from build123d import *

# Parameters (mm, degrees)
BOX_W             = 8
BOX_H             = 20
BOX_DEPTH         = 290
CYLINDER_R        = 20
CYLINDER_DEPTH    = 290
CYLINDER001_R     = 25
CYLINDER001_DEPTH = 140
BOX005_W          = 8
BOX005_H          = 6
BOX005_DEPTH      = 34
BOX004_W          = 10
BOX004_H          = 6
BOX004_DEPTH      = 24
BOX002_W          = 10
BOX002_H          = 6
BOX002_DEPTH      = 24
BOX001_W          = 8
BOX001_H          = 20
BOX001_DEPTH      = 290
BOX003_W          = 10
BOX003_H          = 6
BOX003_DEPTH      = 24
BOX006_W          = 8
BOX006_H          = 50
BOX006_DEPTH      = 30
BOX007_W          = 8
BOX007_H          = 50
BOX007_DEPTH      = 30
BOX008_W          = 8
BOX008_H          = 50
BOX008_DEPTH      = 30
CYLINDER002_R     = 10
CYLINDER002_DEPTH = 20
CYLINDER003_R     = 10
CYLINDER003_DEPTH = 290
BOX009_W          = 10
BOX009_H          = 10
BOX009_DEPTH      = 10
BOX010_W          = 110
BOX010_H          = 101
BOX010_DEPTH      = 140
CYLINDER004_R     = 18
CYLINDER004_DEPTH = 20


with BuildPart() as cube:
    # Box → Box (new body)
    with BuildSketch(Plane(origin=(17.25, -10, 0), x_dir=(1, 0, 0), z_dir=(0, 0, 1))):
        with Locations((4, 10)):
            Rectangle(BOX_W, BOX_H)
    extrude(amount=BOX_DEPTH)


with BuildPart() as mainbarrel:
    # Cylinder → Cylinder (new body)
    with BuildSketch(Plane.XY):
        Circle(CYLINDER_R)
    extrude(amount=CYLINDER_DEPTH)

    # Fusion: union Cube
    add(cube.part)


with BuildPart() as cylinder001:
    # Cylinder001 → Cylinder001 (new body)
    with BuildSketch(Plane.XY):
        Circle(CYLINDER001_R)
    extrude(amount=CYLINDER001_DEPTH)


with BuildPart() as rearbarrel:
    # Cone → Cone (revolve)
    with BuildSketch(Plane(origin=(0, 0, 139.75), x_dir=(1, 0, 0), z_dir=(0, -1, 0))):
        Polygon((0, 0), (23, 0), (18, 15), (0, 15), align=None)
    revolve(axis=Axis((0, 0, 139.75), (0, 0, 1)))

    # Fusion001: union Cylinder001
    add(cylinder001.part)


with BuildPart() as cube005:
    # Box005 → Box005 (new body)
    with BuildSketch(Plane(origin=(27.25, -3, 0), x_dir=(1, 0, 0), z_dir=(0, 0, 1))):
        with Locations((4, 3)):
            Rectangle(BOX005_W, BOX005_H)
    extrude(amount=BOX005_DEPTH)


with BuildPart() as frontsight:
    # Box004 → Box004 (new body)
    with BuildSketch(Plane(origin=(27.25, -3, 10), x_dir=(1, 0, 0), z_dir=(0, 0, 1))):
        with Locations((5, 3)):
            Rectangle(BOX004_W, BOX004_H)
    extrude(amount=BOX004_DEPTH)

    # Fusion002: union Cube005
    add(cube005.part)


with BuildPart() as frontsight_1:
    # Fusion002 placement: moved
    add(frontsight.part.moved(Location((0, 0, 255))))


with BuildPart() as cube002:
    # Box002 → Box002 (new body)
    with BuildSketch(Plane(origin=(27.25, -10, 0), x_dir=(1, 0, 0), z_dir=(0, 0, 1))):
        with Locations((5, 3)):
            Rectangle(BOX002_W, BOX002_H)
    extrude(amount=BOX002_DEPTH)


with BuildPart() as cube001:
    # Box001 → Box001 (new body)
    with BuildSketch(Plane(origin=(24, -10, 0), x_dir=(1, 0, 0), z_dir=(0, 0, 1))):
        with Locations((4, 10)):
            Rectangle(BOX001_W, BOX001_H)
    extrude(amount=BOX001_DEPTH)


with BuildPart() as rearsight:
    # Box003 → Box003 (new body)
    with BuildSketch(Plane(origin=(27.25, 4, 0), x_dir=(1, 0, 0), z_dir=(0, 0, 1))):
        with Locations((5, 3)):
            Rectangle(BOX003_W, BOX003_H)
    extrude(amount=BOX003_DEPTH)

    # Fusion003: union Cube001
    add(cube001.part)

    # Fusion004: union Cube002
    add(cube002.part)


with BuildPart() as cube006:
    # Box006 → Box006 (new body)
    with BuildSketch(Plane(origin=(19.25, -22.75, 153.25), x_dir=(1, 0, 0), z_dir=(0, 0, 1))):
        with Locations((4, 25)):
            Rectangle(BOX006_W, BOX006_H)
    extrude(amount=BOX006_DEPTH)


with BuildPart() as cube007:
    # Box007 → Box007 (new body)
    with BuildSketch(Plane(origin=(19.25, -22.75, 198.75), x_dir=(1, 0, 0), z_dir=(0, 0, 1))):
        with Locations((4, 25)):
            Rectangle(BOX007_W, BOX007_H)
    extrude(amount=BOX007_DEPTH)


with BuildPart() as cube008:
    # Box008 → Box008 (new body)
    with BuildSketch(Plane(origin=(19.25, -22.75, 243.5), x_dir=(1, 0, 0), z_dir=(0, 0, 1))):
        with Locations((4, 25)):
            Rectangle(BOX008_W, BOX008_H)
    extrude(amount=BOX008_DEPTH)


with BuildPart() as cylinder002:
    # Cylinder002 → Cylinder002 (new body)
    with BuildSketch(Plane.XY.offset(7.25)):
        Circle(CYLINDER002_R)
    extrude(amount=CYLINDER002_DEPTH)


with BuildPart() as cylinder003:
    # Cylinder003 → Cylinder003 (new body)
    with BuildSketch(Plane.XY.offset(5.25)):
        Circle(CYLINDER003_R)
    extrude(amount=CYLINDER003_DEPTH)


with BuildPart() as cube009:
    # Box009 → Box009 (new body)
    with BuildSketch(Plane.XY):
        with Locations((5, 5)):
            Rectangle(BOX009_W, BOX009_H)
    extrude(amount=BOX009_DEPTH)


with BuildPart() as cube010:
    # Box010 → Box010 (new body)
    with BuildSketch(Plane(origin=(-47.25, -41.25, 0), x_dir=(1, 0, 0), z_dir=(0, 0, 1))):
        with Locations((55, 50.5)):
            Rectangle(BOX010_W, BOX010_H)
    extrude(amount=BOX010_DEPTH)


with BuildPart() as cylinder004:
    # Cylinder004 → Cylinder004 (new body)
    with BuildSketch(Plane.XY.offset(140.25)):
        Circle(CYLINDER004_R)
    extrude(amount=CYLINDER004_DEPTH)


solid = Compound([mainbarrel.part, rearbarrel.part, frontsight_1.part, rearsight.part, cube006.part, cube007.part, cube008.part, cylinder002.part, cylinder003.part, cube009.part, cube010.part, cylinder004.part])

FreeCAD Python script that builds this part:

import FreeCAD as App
import Part
import Sketcher
from FreeCAD import Vector
Q = App.Units.Quantity


def add_polygon(sketch, points):
    """Adds a closed chain of lines whose ends are joined by coincident constraints."""
    first, n = sketch.GeometryCount, len(points)
    for a, b in zip(points, points[1:] + points[:1]):
        sketch.addGeometry(Part.LineSegment(App.Vector(*a, 0), App.Vector(*b, 0)), False)
    for i in range(n):
        sketch.addConstraint(Sketcher.Constraint("Coincident", first + i, 2, first + (i + 1) % n, 1))

doc = App.newDocument("Part")
body = doc.addObject("PartDesign::Body", "Body")

# Sketch on XY plane
sketch1 = body.newObject("Sketcher::SketchObject", "Sketch")
sketch1.AttachmentSupport = (doc.getObject("XY_Plane"), [""])
sketch1.MapMode = "FlatFace"
add_polygon(sketch1, [(17, 10), (17, -10), (25, -10), (25, 10)])  # lines 0-3
sketch1.addConstraint([
    Sketcher.Constraint("Vertical", 0),
    Sketcher.Constraint("Horizontal", 1),
    Sketcher.Constraint("Vertical", 2),
    Sketcher.Constraint("Horizontal", 3),
    Sketcher.Constraint("DistanceX", 1, 1, 1, 2, Q("8 mm")),
    Sketcher.Constraint("DistanceY", 0, 2, 0, 1, Q("20 mm")),
    Sketcher.Constraint("DistanceY", 0, 2, -1, 1, Q("10 mm")),
    Sketcher.Constraint("DistanceX", -1, 1, 0, 2, Q("17.25 mm")),
])
pad1 = body.newObject("PartDesign::Pad", "Pad")
pad1.Profile = sketch1
pad1.Length = 290
body2 = doc.addObject("PartDesign::Body", "Body001")

# Sketch on XY plane
sketch2 = body2.newObject("Sketcher::SketchObject", "Sketch001")
sketch2.AttachmentSupport = (doc.getObject("XY_Plane001"), [""])
sketch2.MapMode = "FlatFace"
sketch2.addGeometry(Part.Circle(Vector(0, 0, 0), Vector(0, 0, 1), 20), False)
sketch2.addConstraint([
    Sketcher.Constraint("Coincident", 0, 3, -1, 1),
    Sketcher.Constraint("Diameter", 0, Q("40 mm")),
])
pad2 = body2.newObject("PartDesign::Pad", "Pad001")
pad2.Profile = sketch2
pad2.Length = 290
doc.recompute()

boolean = body2.newObject("PartDesign::Boolean", "Boolean")
boolean.Type = "Fuse"
boolean.addObjects([body])
body3 = doc.addObject("PartDesign::Body", "Body002")

# Sketch on XY plane
sketch3 = body3.newObject("Sketcher::SketchObject", "Sketch002")
sketch3.AttachmentSupport = (doc.getObject("XY_Plane002"), [""])
sketch3.MapMode = "FlatFace"
sketch3.addGeometry(Part.Circle(Vector(0, 0, 0), Vector(0, 0, 1), 25), False)
sketch3.addConstraint([
    Sketcher.Constraint("Coincident", 0, 3, -1, 1),
    Sketcher.Constraint("Diameter", 0, Q("50 mm")),
])
pad3 = body3.newObject("PartDesign::Pad", "Pad002")
pad3.Profile = sketch3
pad3.Length = 140
body4 = doc.addObject("PartDesign::Body", "Body003")

# Sketch on XZ plane
sketch4 = body4.newObject("Sketcher::SketchObject", "Sketch003")
sketch4.AttachmentSupport = (doc.getObject("XZ_Plane003"), [""])
sketch4.MapMode = "FlatFace"
add_polygon(sketch4, [(0, 140), (23, 140), (18, 155), (0, 155)])  # lines 0-3
sketch4.addConstraint([
    Sketcher.Constraint("Horizontal", 0),
    Sketcher.Constraint("Horizontal", 2),
    Sketcher.Constraint("Vertical", 3),
    Sketcher.Constraint("PointOnObject", 2, 2, -2),
    Sketcher.Constraint("DistanceX", 0, 1, 0, 2, Q("23 mm")),
    Sketcher.Constraint("DistanceX", 2, 2, 2, 1, Q("18 mm")),
    Sketcher.Constraint("DistanceY", 3, 2, 3, 1, Q("15 mm")),
    Sketcher.Constraint("DistanceY", -1, 1, 0, 2, Q("139.75 mm")),
])
revolution = body4.newObject("PartDesign::Revolution", "Revolution")
revolution.Profile = sketch4
revolution.ReferenceAxis = (sketch4, ["V_Axis"])
revolution.Angle = 360
doc.recompute()

boolean2 = body4.newObject("PartDesign::Boolean", "Boolean001")
boolean2.Type = "Fuse"
boolean2.addObjects([body3])
body5 = doc.addObject("PartDesign::Body", "Body004")

# Sketch on XY plane
sketch5 = body5.newObject("Sketcher::SketchObject", "Sketch004")
sketch5.AttachmentSupport = (doc.getObject("XY_Plane004"), [""])
sketch5.MapMode = "FlatFace"
add_polygon(sketch5, [(27, 3), (27, -3), (35, -3), (35, 3)])  # lines 0-3
sketch5.addConstraint([
    Sketcher.Constraint("Vertical", 0),
    Sketcher.Constraint("Horizontal", 1),
    Sketcher.Constraint("Vertical", 2),
    Sketcher.Constraint("Horizontal", 3),
    Sketcher.Constraint("DistanceX", 1, 1, 1, 2, Q("8 mm")),
    Sketcher.Constraint("DistanceY", 0, 2, 0, 1, Q("6 mm")),
    Sketcher.Constraint("DistanceY", 0, 2, -1, 1, Q("3 mm")),
    Sketcher.Constraint("DistanceX", -1, 1, 0, 2, Q("27.25 mm")),
])
pad4 = body5.newObject("PartDesign::Pad", "Pad003")
pad4.Profile = sketch5
pad4.Length = 34
body6 = doc.addObject("PartDesign::Body", "Body005")

# Sketch on XY plane
sketch6 = body6.newObject("Sketcher::SketchObject", "Sketch005")
sketch6.AttachmentSupport = (doc.getObject("XY_Plane005"), [""])
sketch6.MapMode = "FlatFace"
sketch6.AttachmentOffset = App.Placement(Vector(0, 0, 10), App.Rotation())
add_polygon(sketch6, [(27, 3), (27, -3), (37, -3), (37, 3)])  # lines 0-3
sketch6.addConstraint([
    Sketcher.Constraint("Vertical", 0),
    Sketcher.Constraint("Horizontal", 1),
    Sketcher.Constraint("Vertical", 2),
    Sketcher.Constraint("Horizontal", 3),
    Sketcher.Constraint("DistanceX", 1, 1, 1, 2, Q("10 mm")),
    Sketcher.Constraint("DistanceY", 0, 2, 0, 1, Q("6 mm")),
    Sketcher.Constraint("DistanceY", 0, 2, -1, 1, Q("3 mm")),
    Sketcher.Constraint("DistanceX", -1, 1, 0, 2, Q("27.25 mm")),
])
pad5 = body6.newObject("PartDesign::Pad", "Pad004")
pad5.Profile = sketch6
pad5.Length = 24
doc.recompute()

boolean3 = body6.newObject("PartDesign::Boolean", "Boolean002")
boolean3.Type = "Fuse"
boolean3.addObjects([body5])
body7 = doc.addObject("PartDesign::Body", "Body006")
doc.recompute()

body6.Placement = App.Placement(Vector(0, 0, 255), App.Rotation(Vector(0, 0, 1), 0))
boolean4 = body7.newObject("PartDesign::Boolean", "Boolean003")
boolean4.Type = "Fuse"
boolean4.addObjects([body6])
body8 = doc.addObject("PartDesign::Body", "Body007")

# Sketch on XY plane
sketch7 = body8.newObject("Sketcher::SketchObject", "Sketch006")
sketch7.AttachmentSupport = (doc.getObject("XY_Plane007"), [""])
sketch7.MapMode = "FlatFace"
add_polygon(sketch7, [(27, -4), (27, -10), (37, -10), (37, -4)])  # lines 0-3
sketch7.addConstraint([
    Sketcher.Constraint("Vertical", 0),
    Sketcher.Constraint("Horizontal", 1),
    Sketcher.Constraint("Vertical", 2),
    Sketcher.Constraint("Horizontal", 3),
    Sketcher.Constraint("DistanceX", 1, 1, 1, 2, Q("10 mm")),
    Sketcher.Constraint("DistanceY", 0, 2, 0, 1, Q("6 mm")),
    Sketcher.Constraint("DistanceY", 0, 2, -1, 1, Q("10 mm")),
    Sketcher.Constraint("DistanceX", -1, 1, 0, 2, Q("27.25 mm")),
])
pad6 = body8.newObject("PartDesign::Pad", "Pad005")
pad6.Profile = sketch7
pad6.Length = 24
body9 = doc.addObject("PartDesign::Body", "Body008")

# Sketch on XY plane
sketch8 = body9.newObject("Sketcher::SketchObject", "Sketch007")
sketch8.AttachmentSupport = (doc.getObject("XY_Plane008"), [""])
sketch8.MapMode = "FlatFace"
add_polygon(sketch8, [(24, 10), (24, -10), (32, -10), (32, 10)])  # lines 0-3
sketch8.addConstraint([
    Sketcher.Constraint("Vertical", 0),
    Sketcher.Constraint("Horizontal", 1),
    Sketcher.Constraint("Vertical", 2),
    Sketcher.Constraint("Horizontal", 3),
    Sketcher.Constraint("DistanceX", 1, 1, 1, 2, Q("8 mm")),
    Sketcher.Constraint("DistanceY", 0, 2, 0, 1, Q("20 mm")),
    Sketcher.Constraint("DistanceX", -1, 1, 0, 2, Q("24 mm")),
    Sketcher.Constraint("DistanceY", 0, 2, -1, 1, Q("10 mm")),
])
pad7 = body9.newObject("PartDesign::Pad", "Pad006")
pad7.Profile = sketch8
pad7.Length = 290
body10 = doc.addObject("PartDesign::Body", "Body009")

# Sketch on XY plane
sketch9 = body10.newObject("Sketcher::SketchObject", "Sketch008")
sketch9.AttachmentSupport = (doc.getObject("XY_Plane009"), [""])
sketch9.MapMode = "FlatFace"
add_polygon(sketch9, [(27, 10), (27, 4), (37, 4), (37, 10)])  # lines 0-3
sketch9.addConstraint([
    Sketcher.Constraint("Vertical", 0),
    Sketcher.Constraint("Horizontal", 1),
    Sketcher.Constraint("Vertical", 2),
    Sketcher.Constraint("Horizontal", 3),
    Sketcher.Constraint("DistanceX", 1, 1, 1, 2, Q("10 mm")),
    Sketcher.Constraint("DistanceY", 0, 2, 0, 1, Q("6 mm")),
    Sketcher.Constraint("DistanceY", -1, 1, 0, 2, Q("4 mm")),
    Sketcher.Constraint("DistanceX", -1, 1, 0, 2, Q("27.25 mm")),
])
pad8 = body10.newObject("PartDesign::Pad", "Pad007")
pad8.Profile = sketch9
pad8.Length = 24
doc.recompute()

boolean5 = body10.newObject("PartDesign::Boolean", "Boolean004")
boolean5.Type = "Fuse"
boolean5.addObjects([body9])
doc.recompute()

boolean6 = body10.newObject("PartDesign::Boolean", "Boolean005")
boolean6.Type = "Fuse"
boolean6.addObjects([body8])
body11 = doc.addObject("PartDesign::Body", "Body010")

# Sketch on XY plane
sketch10 = body11.newObject("Sketcher::SketchObject", "Sketch009")
sketch10.AttachmentSupport = (doc.getObject("XY_Plane010"), [""])
sketch10.MapMode = "FlatFace"
sketch10.AttachmentOffset = App.Placement(Vector(0, 0, 153.25), App.Rotation())
add_polygon(sketch10, [(19, 27), (19, -23), (27, -23), (27, 27)])  # lines 0-3
sketch10.addConstraint([
    Sketcher.Constraint("Vertical", 0),
    Sketcher.Constraint("Horizontal", 1),
    Sketcher.Constraint("Vertical", 2),
    Sketcher.Constraint("Horizontal", 3),
    Sketcher.Constraint("DistanceX", 1, 1, 1, 2, Q("8 mm")),
    Sketcher.Constraint("DistanceY", 0, 2, 0, 1, Q("50 mm")),
    Sketcher.Constraint("DistanceX", -1, 1, 0, 2, Q("19.25 mm")),
    Sketcher.Constraint("DistanceY", 0, 2, -1, 1, Q("22.75 mm")),
])
pad9 = body11.newObject("PartDesign::Pad", "Pad008")
pad9.Profile = sketch10
pad9.Length = 30
body12 = doc.addObject("PartDesign::Body", "Body011")

# Sketch on XY plane
sketch11 = body12.newObject("Sketcher::SketchObject", "Sketch010")
sketch11.AttachmentSupport = (doc.getObject("XY_Plane011"), [""])
sketch11.MapMode = "FlatFace"
sketch11.AttachmentOffset = App.Placement(Vector(0, 0, 198.75), App.Rotation())
add_polygon(sketch11, [(19, 27), (19, -23), (27, -23), (27, 27)])  # lines 0-3
sketch11.addConstraint([
    Sketcher.Constraint("Vertical", 0),
    Sketcher.Constraint("Horizontal", 1),
    Sketcher.Constraint("Vertical", 2),
    Sketcher.Constraint("Horizontal", 3),
    Sketcher.Constraint("DistanceX", 1, 1, 1, 2, Q("8 mm")),
    Sketcher.Constraint("DistanceY", 0, 2, 0, 1, Q("50 mm")),
    Sketcher.Constraint("DistanceX", -1, 1, 0, 2, Q("19.25 mm")),
    Sketcher.Constraint("DistanceY", 0, 2, -1, 1, Q("22.75 mm")),
])
pad10 = body12.newObject("PartDesign::Pad", "Pad009")
pad10.Profile = sketch11
pad10.Length = 30
body13 = doc.addObject("PartDesign::Body", "Body012")

# Sketch on XY plane
sketch12 = body13.newObject("Sketcher::SketchObject", "Sketch011")
sketch12.AttachmentSupport = (doc.getObject("XY_Plane012"), [""])
sketch12.MapMode = "FlatFace"
sketch12.AttachmentOffset = App.Placement(Vector(0, 0, 243.5), App.Rotation())
add_polygon(sketch12, [(19, 27), (19, -23), (27, -23), (27, 27)])  # lines 0-3
sketch12.addConstraint([
    Sketcher.Constraint("Vertical", 0),
    Sketcher.Constraint("Horizontal", 1),
    Sketcher.Constraint("Vertical", 2),
    Sketcher.Constraint("Horizontal", 3),
    Sketcher.Constraint("DistanceX", 1, 1, 1, 2, Q("8 mm")),
    Sketcher.Constraint("DistanceY", 0, 2, 0, 1, Q("50 mm")),
    Sketcher.Constraint("DistanceX", -1, 1, 0, 2, Q("19.25 mm")),
    Sketcher.Constraint("DistanceY", 0, 2, -1, 1, Q("22.75 mm")),
])
pad11 = body13.newObject("PartDesign::Pad", "Pad010")
pad11.Profile = sketch12
pad11.Length = 30
body14 = doc.addObject("PartDesign::Body", "Body013")

# Sketch on XY plane
sketch13 = body14.newObject("Sketcher::SketchObject", "Sketch012")
sketch13.AttachmentSupport = (doc.getObject("XY_Plane013"), [""])
sketch13.MapMode = "FlatFace"
sketch13.AttachmentOffset = App.Placement(Vector(0, 0, 7.25), App.Rotation())
sketch13.addGeometry(Part.Circle(Vector(0, 0, 0), Vector(0, 0, 1), 10), False)
sketch13.addConstraint([
    Sketcher.Constraint("Coincident", 0, 3, -1, 1),
    Sketcher.Constraint("Diameter", 0, Q("20 mm")),
])
pad12 = body14.newObject("PartDesign::Pad", "Pad011")
pad12.Profile = sketch13
pad12.Length = 20
body15 = doc.addObject("PartDesign::Body", "Body014")

# Sketch on XY plane
sketch14 = body15.newObject("Sketcher::SketchObject", "Sketch013")
sketch14.AttachmentSupport = (doc.getObject("XY_Plane014"), [""])
sketch14.MapMode = "FlatFace"
sketch14.AttachmentOffset = App.Placement(Vector(0, 0, 5.25), App.Rotation())
sketch14.addGeometry(Part.Circle(Vector(0, 0, 0), Vector(0, 0, 1), 10), False)
sketch14.addConstraint([
    Sketcher.Constraint("Coincident", 0, 3, -1, 1),
    Sketcher.Constraint("Diameter", 0, Q("20 mm")),
])
pad13 = body15.newObject("PartDesign::Pad", "Pad012")
pad13.Profile = sketch14
pad13.Length = 290
body16 = doc.addObject("PartDesign::Body", "Body015")

# Sketch on XY plane
sketch15 = body16.newObject("Sketcher::SketchObject", "Sketch014")
sketch15.AttachmentSupport = (doc.getObject("XY_Plane015"), [""])
sketch15.MapMode = "FlatFace"
add_polygon(sketch15, [(0, 10), (0, 0), (10, 0), (10, 10)])  # lines 0-3
sketch15.addConstraint([
    Sketcher.Constraint("Vertical", 0),
    Sketcher.Constraint("Horizontal", 1),
    Sketcher.Constraint("Vertical", 2),
    Sketcher.Constraint("Horizontal", 3),
    Sketcher.Constraint("Coincident", 0, 2, -1, 1),
    Sketcher.Constraint("Equal", 3, 0),
    Sketcher.Constraint("DistanceX", 1, 1, 1, 2, Q("10 mm")),
])
pad14 = body16.newObject("PartDesign::Pad", "Pad013")
pad14.Profile = sketch15
pad14.Length = 10
body17 = doc.addObject("PartDesign::Body", "Body016")

# Sketch on XY plane
sketch16 = body17.newObject("Sketcher::SketchObject", "Sketch015")
sketch16.AttachmentSupport = (doc.getObject("XY_Plane016"), [""])
sketch16.MapMode = "FlatFace"
add_polygon(sketch16, [(-47, 60), (-47, -41), (63, -41), (63, 60)])  # lines 0-3
sketch16.addConstraint([
    Sketcher.Constraint("Vertical", 0),
    Sketcher.Constraint("Horizontal", 1),
    Sketcher.Constraint("Vertical", 2),
    Sketcher.Constraint("Horizontal", 3),
    Sketcher.Constraint("DistanceX", 1, 1, 1, 2, Q("110 mm")),
    Sketcher.Constraint("DistanceY", 0, 2, 0, 1, Q("101 mm")),
    Sketcher.Constraint("DistanceX", 0, 2, -1, 1, Q("47.25 mm")),
    Sketcher.Constraint("DistanceY", 0, 2, -1, 1, Q("41.25 mm")),
])
pad15 = body17.newObject("PartDesign::Pad", "Pad014")
pad15.Profile = sketch16
pad15.Length = 140
body18 = doc.addObject("PartDesign::Body", "Body017")

# Sketch on XY plane
sketch17 = body18.newObject("Sketcher::SketchObject", "Sketch016")
sketch17.AttachmentSupport = (doc.getObject("XY_Plane017"), [""])
sketch17.MapMode = "FlatFace"
sketch17.AttachmentOffset = App.Placement(Vector(0, 0, 140.25), App.Rotation())
sketch17.addGeometry(Part.Circle(Vector(0, 0, 0), Vector(0, 0, 1), 18), False)
sketch17.addConstraint([
    Sketcher.Constraint("Coincident", 0, 3, -1, 1),
    Sketcher.Constraint("Diameter", 0, Q("36 mm")),
])
pad16 = body18.newObject("PartDesign::Pad", "Pad015")
pad16.Profile = sketch17
pad16.Length = 20

doc.recompute()
